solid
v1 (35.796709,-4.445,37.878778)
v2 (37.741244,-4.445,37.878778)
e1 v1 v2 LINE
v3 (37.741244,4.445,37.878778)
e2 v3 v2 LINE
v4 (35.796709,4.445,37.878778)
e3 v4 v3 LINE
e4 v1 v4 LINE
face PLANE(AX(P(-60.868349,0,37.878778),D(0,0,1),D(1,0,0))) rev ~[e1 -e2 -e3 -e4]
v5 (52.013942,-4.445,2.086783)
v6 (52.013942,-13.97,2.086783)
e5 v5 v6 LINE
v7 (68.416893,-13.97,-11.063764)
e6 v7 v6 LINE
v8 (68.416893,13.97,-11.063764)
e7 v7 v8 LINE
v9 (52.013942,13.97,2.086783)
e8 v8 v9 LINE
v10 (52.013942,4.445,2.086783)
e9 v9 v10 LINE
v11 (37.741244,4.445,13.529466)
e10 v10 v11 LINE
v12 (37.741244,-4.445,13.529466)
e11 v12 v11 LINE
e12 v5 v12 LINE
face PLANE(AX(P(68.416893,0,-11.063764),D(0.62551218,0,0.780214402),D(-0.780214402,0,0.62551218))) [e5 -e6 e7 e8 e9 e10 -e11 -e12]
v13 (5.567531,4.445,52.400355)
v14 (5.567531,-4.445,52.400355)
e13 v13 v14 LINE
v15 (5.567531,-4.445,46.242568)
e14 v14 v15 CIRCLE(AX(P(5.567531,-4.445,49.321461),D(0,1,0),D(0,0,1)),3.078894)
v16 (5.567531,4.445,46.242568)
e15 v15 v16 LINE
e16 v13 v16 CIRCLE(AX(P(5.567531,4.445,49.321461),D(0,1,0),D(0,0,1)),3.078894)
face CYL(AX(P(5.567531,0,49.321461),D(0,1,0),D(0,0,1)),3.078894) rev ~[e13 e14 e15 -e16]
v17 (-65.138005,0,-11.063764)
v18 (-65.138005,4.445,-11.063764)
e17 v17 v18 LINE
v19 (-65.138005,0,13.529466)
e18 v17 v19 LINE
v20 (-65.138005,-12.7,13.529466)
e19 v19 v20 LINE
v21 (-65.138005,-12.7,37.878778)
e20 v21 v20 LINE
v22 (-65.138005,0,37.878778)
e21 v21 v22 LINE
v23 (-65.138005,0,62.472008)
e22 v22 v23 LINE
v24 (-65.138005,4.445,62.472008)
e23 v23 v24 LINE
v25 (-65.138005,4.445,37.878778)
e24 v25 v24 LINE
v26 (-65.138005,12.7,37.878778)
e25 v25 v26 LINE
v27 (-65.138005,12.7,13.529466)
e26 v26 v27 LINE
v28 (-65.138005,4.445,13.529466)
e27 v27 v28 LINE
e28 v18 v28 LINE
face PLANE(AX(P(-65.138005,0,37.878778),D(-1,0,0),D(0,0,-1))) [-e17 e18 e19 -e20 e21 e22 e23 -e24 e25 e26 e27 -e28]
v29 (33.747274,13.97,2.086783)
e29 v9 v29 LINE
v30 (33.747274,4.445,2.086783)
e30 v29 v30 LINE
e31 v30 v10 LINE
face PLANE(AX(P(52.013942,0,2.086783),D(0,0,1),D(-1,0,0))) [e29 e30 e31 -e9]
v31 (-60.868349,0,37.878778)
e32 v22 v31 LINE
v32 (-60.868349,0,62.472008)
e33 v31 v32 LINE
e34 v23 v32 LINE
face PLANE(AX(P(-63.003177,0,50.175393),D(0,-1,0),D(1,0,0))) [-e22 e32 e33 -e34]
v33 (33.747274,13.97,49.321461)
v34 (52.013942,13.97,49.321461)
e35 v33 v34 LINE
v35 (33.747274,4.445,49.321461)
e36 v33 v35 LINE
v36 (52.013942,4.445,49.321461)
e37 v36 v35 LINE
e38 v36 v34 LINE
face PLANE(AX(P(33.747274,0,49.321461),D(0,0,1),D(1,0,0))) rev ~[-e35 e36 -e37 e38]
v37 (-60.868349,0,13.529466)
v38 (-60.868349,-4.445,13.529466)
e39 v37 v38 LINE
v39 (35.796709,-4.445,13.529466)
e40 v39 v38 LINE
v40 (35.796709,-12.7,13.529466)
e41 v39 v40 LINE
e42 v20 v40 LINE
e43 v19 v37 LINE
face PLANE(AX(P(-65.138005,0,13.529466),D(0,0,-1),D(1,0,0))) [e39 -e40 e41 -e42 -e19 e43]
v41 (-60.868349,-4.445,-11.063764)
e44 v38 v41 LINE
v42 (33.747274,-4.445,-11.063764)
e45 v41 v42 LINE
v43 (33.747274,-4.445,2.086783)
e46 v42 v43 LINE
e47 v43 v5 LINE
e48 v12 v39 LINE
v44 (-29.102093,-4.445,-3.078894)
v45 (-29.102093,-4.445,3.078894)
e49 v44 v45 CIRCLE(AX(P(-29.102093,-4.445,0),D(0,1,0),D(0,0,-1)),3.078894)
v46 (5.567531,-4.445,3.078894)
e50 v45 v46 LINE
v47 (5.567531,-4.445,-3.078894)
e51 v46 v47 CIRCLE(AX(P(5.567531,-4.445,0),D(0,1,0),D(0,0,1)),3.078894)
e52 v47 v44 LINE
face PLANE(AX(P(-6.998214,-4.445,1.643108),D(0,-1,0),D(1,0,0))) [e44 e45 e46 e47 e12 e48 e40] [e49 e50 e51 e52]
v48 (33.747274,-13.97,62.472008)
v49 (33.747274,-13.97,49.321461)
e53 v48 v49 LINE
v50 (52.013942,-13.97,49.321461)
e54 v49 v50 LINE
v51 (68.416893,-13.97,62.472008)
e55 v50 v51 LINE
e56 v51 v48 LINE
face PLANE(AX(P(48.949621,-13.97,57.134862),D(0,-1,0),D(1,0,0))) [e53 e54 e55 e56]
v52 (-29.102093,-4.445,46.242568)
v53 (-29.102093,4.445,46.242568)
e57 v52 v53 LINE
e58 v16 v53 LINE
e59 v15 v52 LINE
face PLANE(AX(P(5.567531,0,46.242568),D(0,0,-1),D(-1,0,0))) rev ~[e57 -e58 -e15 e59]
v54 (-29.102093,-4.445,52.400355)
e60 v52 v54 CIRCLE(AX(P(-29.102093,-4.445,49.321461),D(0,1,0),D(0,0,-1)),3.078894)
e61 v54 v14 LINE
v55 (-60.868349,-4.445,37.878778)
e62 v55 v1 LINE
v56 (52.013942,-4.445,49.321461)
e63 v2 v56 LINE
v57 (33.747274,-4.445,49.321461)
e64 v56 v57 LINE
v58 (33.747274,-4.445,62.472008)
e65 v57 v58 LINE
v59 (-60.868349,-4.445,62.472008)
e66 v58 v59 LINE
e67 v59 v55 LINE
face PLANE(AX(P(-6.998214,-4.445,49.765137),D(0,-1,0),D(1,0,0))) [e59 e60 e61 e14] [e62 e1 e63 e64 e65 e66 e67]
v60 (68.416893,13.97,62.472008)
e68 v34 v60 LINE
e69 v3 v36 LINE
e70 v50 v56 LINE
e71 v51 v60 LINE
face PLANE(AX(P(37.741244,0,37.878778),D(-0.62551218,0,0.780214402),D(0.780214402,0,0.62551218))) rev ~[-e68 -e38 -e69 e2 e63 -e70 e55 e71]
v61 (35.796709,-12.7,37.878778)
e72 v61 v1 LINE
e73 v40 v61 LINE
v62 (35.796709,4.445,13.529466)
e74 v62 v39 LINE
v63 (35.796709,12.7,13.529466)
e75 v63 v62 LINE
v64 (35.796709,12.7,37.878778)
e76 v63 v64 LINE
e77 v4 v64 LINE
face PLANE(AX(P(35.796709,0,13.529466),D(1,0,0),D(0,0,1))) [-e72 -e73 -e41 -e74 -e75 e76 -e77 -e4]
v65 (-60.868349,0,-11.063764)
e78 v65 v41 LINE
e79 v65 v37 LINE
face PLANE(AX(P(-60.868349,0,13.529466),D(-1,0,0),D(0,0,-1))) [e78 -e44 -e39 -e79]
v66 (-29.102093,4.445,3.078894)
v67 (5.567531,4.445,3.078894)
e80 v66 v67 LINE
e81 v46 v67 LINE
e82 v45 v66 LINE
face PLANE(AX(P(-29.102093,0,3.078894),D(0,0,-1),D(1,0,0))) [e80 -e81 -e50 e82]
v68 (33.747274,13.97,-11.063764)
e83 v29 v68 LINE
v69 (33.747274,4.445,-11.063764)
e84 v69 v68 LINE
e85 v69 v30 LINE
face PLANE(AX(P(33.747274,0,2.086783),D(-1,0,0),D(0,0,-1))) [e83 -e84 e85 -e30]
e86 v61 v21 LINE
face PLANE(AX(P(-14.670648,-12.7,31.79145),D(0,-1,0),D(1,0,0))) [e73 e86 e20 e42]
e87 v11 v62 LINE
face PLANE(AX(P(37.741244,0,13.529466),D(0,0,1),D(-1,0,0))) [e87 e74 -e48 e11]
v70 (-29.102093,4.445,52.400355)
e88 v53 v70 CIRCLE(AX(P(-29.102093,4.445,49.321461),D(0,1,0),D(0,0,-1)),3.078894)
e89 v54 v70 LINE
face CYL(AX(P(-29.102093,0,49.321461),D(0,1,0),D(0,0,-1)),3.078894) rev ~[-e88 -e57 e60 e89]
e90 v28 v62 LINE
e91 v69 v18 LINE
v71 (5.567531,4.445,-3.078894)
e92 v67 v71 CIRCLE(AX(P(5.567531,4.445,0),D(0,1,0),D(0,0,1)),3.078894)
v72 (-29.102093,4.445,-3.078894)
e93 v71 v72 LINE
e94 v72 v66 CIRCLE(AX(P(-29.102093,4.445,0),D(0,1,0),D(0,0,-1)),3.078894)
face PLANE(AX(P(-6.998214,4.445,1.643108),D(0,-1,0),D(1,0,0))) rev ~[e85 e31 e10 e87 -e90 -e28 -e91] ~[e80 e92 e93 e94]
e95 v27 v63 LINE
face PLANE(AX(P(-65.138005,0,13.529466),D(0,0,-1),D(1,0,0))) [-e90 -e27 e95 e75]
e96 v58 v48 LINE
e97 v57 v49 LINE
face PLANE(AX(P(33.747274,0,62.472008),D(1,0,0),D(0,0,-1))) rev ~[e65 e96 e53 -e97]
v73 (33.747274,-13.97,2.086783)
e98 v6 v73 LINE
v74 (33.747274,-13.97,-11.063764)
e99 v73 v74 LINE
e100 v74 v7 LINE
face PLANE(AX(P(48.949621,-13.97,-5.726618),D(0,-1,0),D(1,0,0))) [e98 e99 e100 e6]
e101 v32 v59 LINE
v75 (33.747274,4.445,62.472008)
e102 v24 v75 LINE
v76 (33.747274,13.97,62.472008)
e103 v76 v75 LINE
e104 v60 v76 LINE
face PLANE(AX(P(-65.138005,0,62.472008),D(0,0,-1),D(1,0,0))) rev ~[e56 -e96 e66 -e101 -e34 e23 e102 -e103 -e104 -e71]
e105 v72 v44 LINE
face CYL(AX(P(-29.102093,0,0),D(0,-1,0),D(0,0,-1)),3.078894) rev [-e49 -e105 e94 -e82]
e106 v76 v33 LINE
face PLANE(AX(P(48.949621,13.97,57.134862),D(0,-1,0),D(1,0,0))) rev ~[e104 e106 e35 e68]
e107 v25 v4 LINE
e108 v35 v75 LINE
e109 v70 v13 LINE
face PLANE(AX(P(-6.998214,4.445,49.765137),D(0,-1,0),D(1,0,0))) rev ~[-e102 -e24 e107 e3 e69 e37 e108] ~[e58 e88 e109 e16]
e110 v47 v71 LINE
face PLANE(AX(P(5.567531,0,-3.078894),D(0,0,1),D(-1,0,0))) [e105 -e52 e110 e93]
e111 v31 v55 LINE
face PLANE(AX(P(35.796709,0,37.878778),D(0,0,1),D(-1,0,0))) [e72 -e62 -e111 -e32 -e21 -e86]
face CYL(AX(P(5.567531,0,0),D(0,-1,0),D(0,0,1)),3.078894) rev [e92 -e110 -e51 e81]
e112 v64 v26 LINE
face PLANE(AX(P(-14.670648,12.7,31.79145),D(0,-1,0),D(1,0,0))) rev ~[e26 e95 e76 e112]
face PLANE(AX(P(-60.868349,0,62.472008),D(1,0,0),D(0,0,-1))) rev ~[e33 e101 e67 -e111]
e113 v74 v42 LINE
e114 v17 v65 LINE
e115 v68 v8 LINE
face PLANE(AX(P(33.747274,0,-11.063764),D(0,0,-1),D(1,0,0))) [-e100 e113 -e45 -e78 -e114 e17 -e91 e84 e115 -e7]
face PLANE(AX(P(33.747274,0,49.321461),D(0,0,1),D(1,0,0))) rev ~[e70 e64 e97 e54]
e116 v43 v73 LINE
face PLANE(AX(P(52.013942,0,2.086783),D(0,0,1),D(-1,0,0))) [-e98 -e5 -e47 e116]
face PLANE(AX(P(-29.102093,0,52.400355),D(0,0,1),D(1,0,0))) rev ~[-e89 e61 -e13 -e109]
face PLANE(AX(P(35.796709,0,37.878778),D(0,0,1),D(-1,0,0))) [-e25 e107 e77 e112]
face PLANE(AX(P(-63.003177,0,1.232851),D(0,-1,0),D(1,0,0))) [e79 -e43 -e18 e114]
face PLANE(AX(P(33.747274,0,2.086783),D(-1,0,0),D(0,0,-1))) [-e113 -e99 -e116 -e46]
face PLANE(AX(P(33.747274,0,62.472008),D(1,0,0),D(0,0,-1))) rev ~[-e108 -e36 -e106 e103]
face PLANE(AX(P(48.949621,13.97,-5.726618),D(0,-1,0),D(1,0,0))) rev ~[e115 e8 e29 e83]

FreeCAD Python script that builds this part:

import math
import FreeCAD as App
import Part
import Sketcher
from FreeCAD import Vector
Q = App.Units.Quantity

doc = App.newDocument("Part")
body = doc.addObject("PartDesign::Body", "Body")

sketch1 = body.newObject("Sketcher::SketchObject", "Sketch")
sketch1.AttachmentSupport = (doc.getObject("XZ_Plane"), [""])
sketch1.MapMode = "FlatFace"
sketch1.addGeometry(Part.LineSegment(Vector(-65, 38, 0), Vector(-65, 14, 0)), False)
sketch1.addGeometry(Part.LineSegment(Vector(-65, 14, 0), Vector(36, 14, 0)), False)
sketch1.addGeometry(Part.LineSegment(Vector(36, 14, 0), Vector(36, 38, 0)), False)
sketch1.addGeometry(Part.LineSegment(Vector(36, 38, 0), Vector(-65, 38, 0)), False)
sketch1.addConstraint(Sketcher.Constraint("Coincident", 0, 2, 1, 1))
sketch1.addConstraint(Sketcher.Constraint("Coincident", 1, 2, 2, 1))
sketch1.addConstraint(Sketcher.Constraint("Coincident", 2, 2, 3, 1))
sketch1.addConstraint(Sketcher.Constraint("Coincident", 3, 2, 0, 1))
sketch1.addConstraint(Sketcher.Constraint("Vertical", 0))
sketch1.addConstraint(Sketcher.Constraint("Horizontal", 1))
sketch1.addConstraint(Sketcher.Constraint("Vertical", 2))
sketch1.addConstraint(Sketcher.Constraint("Horizontal", 3))
sketch1.addConstraint(Sketcher.Constraint("DistanceY", 0, 2, 0, 1, Q("24.349311 mm")))
sketch1.addConstraint(Sketcher.Constraint("DistanceX", 1, 1, 1, 2, Q("100.934714 mm")))
sketch1.addConstraint(Sketcher.Constraint("DistanceX", -1, 1, 1, 2, Q("35.796709 mm")))
sketch1.addConstraint(Sketcher.Constraint("DistanceY", -1, 1, 0, 2, Q("13.529466 mm")))
pad1 = body.newObject("PartDesign::Pad", "Pad")
pad1.Profile = sketch1
pad1.Length = Q("1 in")
pad1.Midplane = True

sketch2 = body.newObject("Sketcher::SketchObject", "Sketch001")
sketch2.AttachmentSupport = (doc.getObject("XZ_Plane"), [""])
sketch2.MapMode = "FlatFace"
sketch2.addGeometry(Part.LineSegment(Vector(-65.1, 62.5, 0), Vector(-65.1, 37.9, 0)), False)
sketch2.addGeometry(Part.LineSegment(Vector(-65.1, 37.9, 0), Vector(-60.9, 37.9, 0)), False)
sketch2.addGeometry(Part.LineSegment(Vector(-60.9, 37.9, 0), Vector(-60.9, 62.5, 0)), False)
sketch2.addGeometry(Part.LineSegment(Vector(-60.9, 62.5, 0), Vector(-65.1, 62.5, 0)), False)
sketch2.addGeometry(Part.LineSegment(Vector(-65.1, 13.5, 0), Vector(-65.1, -11.1, 0)), False)
sketch2.addGeometry(Part.LineSegment(Vector(-65.1, -11.1, 0), Vector(-60.9, -11.1, 0)), False)
sketch2.addGeometry(Part.LineSegment(Vector(-60.9, -11.1, 0), Vector(-60.9, 13.5, 0)), False)
sketch2.addGeometry(Part.LineSegment(Vector(-60.9, 13.5, 0), Vector(-65.1, 13.5, 0)), False)
sketch2.addConstraint(Sketcher.Constraint("Coincident", 0, 2, 1, 1))
sketch2.addConstraint(Sketcher.Constraint("Coincident", 1, 2, 2, 1))
sketch2.addConstraint(Sketcher.Constraint("Coincident", 2, 2, 3, 1))
sketch2.addConstraint(Sketcher.Constraint("Coincident", 3, 2, 0, 1))
sketch2.addConstraint(Sketcher.Constraint("Coincident", 4, 2, 5, 1))
sketch2.addConstraint(Sketcher.Constraint("Coincident", 5, 2, 6, 1))
sketch2.addConstraint(Sketcher.Constraint("Coincident", 6, 2, 7, 1))
sketch2.addConstraint(Sketcher.Constraint("Coincident", 7, 2, 4, 1))
sketch2.addConstraint(Sketcher.Constraint("Vertical", 0))
sketch2.addConstraint(Sketcher.Constraint("Horizontal", 1))
sketch2.addConstraint(Sketcher.Constraint("Vertical", 2))
sketch2.addConstraint(Sketcher.Constraint("Horizontal", 3))
sketch2.addConstraint(Sketcher.Constraint("Vertical", 4))
sketch2.addConstraint(Sketcher.Constraint("Horizontal", 5))
sketch2.addConstraint(Sketcher.Constraint("Vertical", 6))
sketch2.addConstraint(Sketcher.Constraint("Horizontal", 7))
sketch2.addConstraint(Sketcher.Constraint("Vertical", 3, 2, 4, 2))
sketch2.addConstraint(Sketcher.Constraint("Vertical", 2, 2, 5, 2))
sketch2.addConstraint(Sketcher.Constraint("Equal", 2, 4))
sketch2.addConstraint(Sketcher.Constraint("DistanceY", 0, 2, 0, 1, Q("24.59323 mm")))
sketch2.addConstraint(Sketcher.Constraint("DistanceX", 1, 1, 1, 2, Q("4.269656 mm")))
sketch2.addConstraint(Sketcher.Constraint("DistanceX", 1, 2, -1, 1, Q("60.868349 mm")))
sketch2.addConstraint(Sketcher.Constraint("DistanceY", -1, 1, 2, 2, Q("62.472008 mm")))
sketch2.addConstraint(Sketcher.Constraint("DistanceY", 4, 2, 0, 2, Q("48.942542 mm")))
pad2 = body.newObject("PartDesign::Pad", "Pad001")
pad2.Profile = sketch2
pad2.Length = Q("0.175 in")
pad2.Reversed = True

sketch3 = body.newObject("Sketcher::SketchObject", "Sketch002")
sketch3.AttachmentSupport = (doc.getObject("XZ_Plane"), [""])
sketch3.MapMode = "FlatFace"
sketch3.addGeometry(Part.LineSegment(Vector(33.7, 62.5, 0), Vector(-60.9, 62.5, 0)), False)
sketch3.addGeometry(Part.LineSegment(Vector(-60.9, 62.5, 0), Vector(-60.9, 37.9, 0)), False)
sketch3.addGeometry(Part.LineSegment(Vector(-60.9, 37.9, 0), Vector(37.7, 37.9, 0)), False)
sketch3.addGeometry(Part.LineSegment(Vector(37.7, 37.9, 0), Vector(52, 49.3, 0)), False)
sketch3.addGeometry(Part.LineSegment(Vector(52, 49.3, 0), Vector(33.7, 49.3, 0)), False)
sketch3.addGeometry(Part.LineSegment(Vector(33.7, 49.3, 0), Vector(33.7, 62.5, 0)), False)
sketch3.addGeometry(Part.LineSegment(Vector(-29.1, 52.4, 0), Vector(5.6, 52.4, 0)), False)
sketch3.addGeometry(Part.ArcOfCircle(Part.Circle(Vector(5.6, 49.3, 0), Vector(0, 0, 1), 3.1), math.radians(-90), math.radians(90)), False)
sketch3.addGeometry(Part.LineSegment(Vector(5.6, 46.2, 0), Vector(-29.1, 46.2, 0)), False)
sketch3.addGeometry(Part.ArcOfCircle(Part.Circle(Vector(-29.1, 49.3, 0), Vector(0, 0, 1), 3.1), math.radians(90), math.radians(270)), False)
sketch3.addGeometry(Part.LineSegment(Vector(37.7, 13.5, 0), Vector(-60.9, 13.5, 0)), False)
sketch3.addGeometry(Part.LineSegment(Vector(-60.9, 13.5, 0), Vector(-60.9, -11.1, 0)), False)
sketch3.addGeometry(Part.LineSegment(Vector(-60.9, -11.1, 0), Vector(33.7, -11.1, 0)), False)
sketch3.addGeometry(Part.LineSegment(Vector(33.7, -11.1, 0), Vector(33.7, 2.1, 0)), False)
sketch3.addGeometry(Part.LineSegment(Vector(33.7, 2.1, 0), Vector(52, 2.1, 0)), False)
sketch3.addGeometry(Part.LineSegment(Vector(52, 2.1, 0), Vector(37.7, 13.5, 0)), False)
sketch3.addGeometry(Part.LineSegment(Vector(5.6, -3.1, 0), Vector(-29.1, -3.1, 0)), False)
sketch3.addGeometry(Part.ArcOfCircle(Part.Circle(Vector(-29.1, 0, 0), Vector(0, 0, 1), 3.1), math.radians(90), math.radians(270)), False)
sketch3.addGeometry(Part.LineSegment(Vector(-29.1, 3.1, 0), Vector(5.6, 3.1, 0)), False)
sketch3.addGeometry(Part.ArcOfCircle(Part.Circle(Vector(5.6, 0, 0), Vector(0, 0, 1), 3.1), math.radians(-90), math.radians(90)), False)
sketch3.addConstraint(Sketcher.Constraint("Coincident", 0, 2, 1, 1))
sketch3.addConstraint(Sketcher.Constraint("Coincident", 1, 2, 2, 1))
sketch3.addConstraint(Sketcher.Constraint("Coincident", 2, 2, 3, 1))
sketch3.addConstraint(Sketcher.Constraint("Coincident", 3, 2, 4, 1))
sketch3.addConstraint(Sketcher.Constraint("Coincident", 4, 2, 5, 1))
sketch3.addConstraint(Sketcher.Constraint("Coincident", 5, 2, 0, 1))
sketch3.addConstraint(Sketcher.Constraint("Tangent", 6, 2, 7, 2))
sketch3.addConstraint(Sketcher.Constraint("Tangent", 7, 1, 8, 1))
sketch3.addConstraint(Sketcher.Constraint("Tangent", 8, 2, 9, 2))
sketch3.addConstraint(Sketcher.Constraint("Tangent", 9, 1, 6, 1))
sketch3.addConstraint(Sketcher.Constraint("Coincident", 10, 2, 11, 1))
sketch3.addConstraint(Sketcher.Constraint("Coincident", 11, 2, 12, 1))
sketch3.addConstraint(Sketcher.Constraint("Coincident", 12, 2, 13, 1))
sketch3.addConstraint(Sketcher.Constraint("Coincident", 13, 2, 14, 1))
sketch3.addConstraint(Sketcher.Constraint("Coincident", 14, 2, 15, 1))
sketch3.addConstraint(Sketcher.Constraint("Coincident", 15, 2, 10, 1))
sketch3.addConstraint(Sketcher.Constraint("Tangent", 16, 2, 17, 2))
sketch3.addConstraint(Sketcher.Constraint("Tangent", 17, 1, 18, 1))
sketch3.addConstraint(Sketcher.Constraint("Tangent", 18, 2, 19, 2))
sketch3.addConstraint(Sketcher.Constraint("Tangent", 19, 1, 16, 1))
sketch3.addConstraint(Sketcher.Constraint("Horizontal", 0))
sketch3.addConstraint(Sketcher.Constraint("Vertical", 1))
sketch3.addConstraint(Sketcher.Constraint("Horizontal", 2))
sketch3.addConstraint(Sketcher.Constraint("Horizontal", 4))
sketch3.addConstraint(Sketcher.Constraint("Vertical", 5))
sketch3.addConstraint(Sketcher.Constraint("Horizontal", 6))
sketch3.addConstraint(Sketcher.Constraint("Horizontal", 8))
sketch3.addConstraint(Sketcher.Constraint("Horizontal", 10))
sketch3.addConstraint(Sketcher.Constraint("Vertical", 11))
sketch3.addConstraint(Sketcher.Constraint("Horizontal", 12))
sketch3.addConstraint(Sketcher.Constraint("Vertical", 13))
sketch3.addConstraint(Sketcher.Constraint("Horizontal", 14))
sketch3.addConstraint(Sketcher.Constraint("Horizontal", 16))
sketch3.addConstraint(Sketcher.Constraint("Horizontal", 18))
sketch3.addConstraint(Sketcher.Constraint("Equal", 9, 17))
sketch3.addConstraint(Sketcher.Constraint("PointOnObject", 17, 3, -1))
sketch3.addConstraint(Sketcher.Constraint("Horizontal", 9, 3, 3, 2))
sketch3.addConstraint(Sketcher.Constraint("Vertical", 9, 3, 17, 3))
sketch3.addConstraint(Sketcher.Constraint("Vertical", 7, 3, 19, 3))
sketch3.addConstraint(Sketcher.Constraint("Vertical", 1, 2, 10, 2))
sketch3.addConstraint(Sketcher.Constraint("Vertical", 5, 2, 12, 2))
sketch3.addConstraint(Sketcher.Constraint("Vertical", 3, 2, 14, 2))
sketch3.addConstraint(Sketcher.Constraint("Vertical", 2, 2, 15, 2))
sketch3.addConstraint(Sketcher.Constraint("Equal", 1, 11))
sketch3.addConstraint(Sketcher.Constraint("Equal", 5, 13))
sketch3.addConstraint(Sketcher.Constraint("Radius", 7, Q("3.078894 mm")))
sketch3.addConstraint(Sketcher.Constraint("DistanceY", 1, 2, 1, 1, Q("24.59323 mm")))
sketch3.addConstraint(Sketcher.Constraint("DistanceX", 2, 2, 3, 2, Q("14.272698 mm")))
sketch3.addConstraint(Sketcher.Constraint("DistanceY", 10, 2, 8, 2, Q("32.713101 mm")))
sketch3.addConstraint(Sketcher.Constraint("DistanceX", 0, 2, 0, 1, Q("94.615623 mm")))
sketch3.addConstraint(Sketcher.Constraint("DistanceX", 2, 1, 2, 2, Q("98.609593 mm")))
sketch3.addConstraint(Sketcher.Constraint("DistanceX", 6, 1, 6, 2, Q("34.669624 mm")))
sketch3.addConstraint(Sketcher.Constraint("DistanceY", 5, 1, 5, 2, Q("13.150547 mm")))
sketch3.addConstraint(Sketcher.Constraint("DistanceX", -1, 1, 7, 3, Q("5.567531 mm")))
sketch3.addConstraint(Sketcher.Constraint("DistanceY", -1, 1, 7, 3, Q("49.321461 mm")))
sketch3.addConstraint(Sketcher.Constraint("DistanceX", 0, 2, -1, 1, Q("60.868349 mm")))
pad3 = body.newObject("PartDesign::Pad", "Pad002")
pad3.Profile = sketch3
pad3.Length = Q("0.35 in")
pad3.Midplane = True

sketch4 = body.newObject("Sketcher::SketchObject", "Sketch003")
sketch4.AttachmentSupport = (doc.getObject("XZ_Plane"), [""])
sketch4.MapMode = "FlatFace"
sketch4.addGeometry(Part.LineSegment(Vector(68, 62, 0), Vector(34, 62, 0)), False)
sketch4.addGeometry(Part.LineSegment(Vector(34, 62, 0), Vector(34, 49, 0)), False)
sketch4.addGeometry(Part.LineSegment(Vector(34, 49, 0), Vector(52, 49, 0)), False)
sketch4.addGeometry(Part.LineSegment(Vector(52, 49, 0), Vector(68, 62, 0)), False)
sketch4.addGeometry(Part.LineSegment(Vector(68, -11, 0), Vector(52, 2, 0)), False)
sketch4.addGeometry(Part.LineSegment(Vector(52, 2, 0), Vector(34, 2, 0)), False)
sketch4.addGeometry(Part.LineSegment(Vector(34, 2, 0), Vector(34, -11, 0)), False)
sketch4.addGeometry(Part.LineSegment(Vector(34, -11, 0), Vector(68, -11, 0)), False)
sketch4.addConstraint(Sketcher.Constraint("Coincident", 0, 2, 1, 1))
sketch4.addConstraint(Sketcher.Constraint("Coincident", 1, 2, 2, 1))
sketch4.addConstraint(Sketcher.Constraint("Coincident", 2, 2, 3, 1))
sketch4.addConstraint(Sketcher.Constraint("Coincident", 3, 2, 0, 1))
sketch4.addConstraint(Sketcher.Constraint("Coincident", 4, 2, 5, 1))
sketch4.addConstraint(Sketcher.Constraint("Coincident", 5, 2, 6, 1))
sketch4.addConstraint(Sketcher.Constraint("Coincident", 6, 2, 7, 1))
sketch4.addConstraint(Sketcher.Constraint("Coincident", 7, 2, 4, 1))
sketch4.addConstraint(Sketcher.Constraint("Horizontal", 0))
sketch4.addConstraint(Sketcher.Constraint("Vertical", 1))
sketch4.addConstraint(Sketcher.Constraint("Horizontal", 2))
sketch4.addConstraint(Sketcher.Constraint("Horizontal", 5))
sketch4.addConstraint(Sketcher.Constraint("Vertical", 6))
sketch4.addConstraint(Sketcher.Constraint("Horizontal", 7))
sketch4.addConstraint(Sketcher.Constraint("Vertical", 2, 2, 4, 2))
sketch4.addConstraint(Sketcher.Constraint("Vertical", 1, 2, 5, 2))
sketch4.addConstraint(Sketcher.Constraint("Vertical", 3, 2, 7, 2))
sketch4.addConstraint(Sketcher.Constraint("Equal", 1, 6))
sketch4.addConstraint(Sketcher.Constraint("DistanceX", 0, 2, 0, 1, Q("34.669619 mm")))
sketch4.addConstraint(Sketcher.Constraint("DistanceX", 2, 1, 2, 2, Q("18.266668 mm")))
sketch4.addConstraint(Sketcher.Constraint("DistanceY", 1, 2, 1, 1, Q("13.150547 mm")))
sketch4.addConstraint(Sketcher.Constraint("DistanceY", -1, 1, 0, 2, Q("62.472008 mm")))
sketch4.addConstraint(Sketcher.Constraint("DistanceY", 4, 2, 2, 2, Q("47.234679 mm")))
sketch4.addConstraint(Sketcher.Constraint("DistanceX", -1, 1, 0, 2, Q("33.747274 mm")))
pad4 = body.newObject("PartDesign::Pad", "Pad003")
pad4.Profile = sketch4
pad4.Length = Q("1.1 in")
pad4.Midplane = True

doc.recompute()
